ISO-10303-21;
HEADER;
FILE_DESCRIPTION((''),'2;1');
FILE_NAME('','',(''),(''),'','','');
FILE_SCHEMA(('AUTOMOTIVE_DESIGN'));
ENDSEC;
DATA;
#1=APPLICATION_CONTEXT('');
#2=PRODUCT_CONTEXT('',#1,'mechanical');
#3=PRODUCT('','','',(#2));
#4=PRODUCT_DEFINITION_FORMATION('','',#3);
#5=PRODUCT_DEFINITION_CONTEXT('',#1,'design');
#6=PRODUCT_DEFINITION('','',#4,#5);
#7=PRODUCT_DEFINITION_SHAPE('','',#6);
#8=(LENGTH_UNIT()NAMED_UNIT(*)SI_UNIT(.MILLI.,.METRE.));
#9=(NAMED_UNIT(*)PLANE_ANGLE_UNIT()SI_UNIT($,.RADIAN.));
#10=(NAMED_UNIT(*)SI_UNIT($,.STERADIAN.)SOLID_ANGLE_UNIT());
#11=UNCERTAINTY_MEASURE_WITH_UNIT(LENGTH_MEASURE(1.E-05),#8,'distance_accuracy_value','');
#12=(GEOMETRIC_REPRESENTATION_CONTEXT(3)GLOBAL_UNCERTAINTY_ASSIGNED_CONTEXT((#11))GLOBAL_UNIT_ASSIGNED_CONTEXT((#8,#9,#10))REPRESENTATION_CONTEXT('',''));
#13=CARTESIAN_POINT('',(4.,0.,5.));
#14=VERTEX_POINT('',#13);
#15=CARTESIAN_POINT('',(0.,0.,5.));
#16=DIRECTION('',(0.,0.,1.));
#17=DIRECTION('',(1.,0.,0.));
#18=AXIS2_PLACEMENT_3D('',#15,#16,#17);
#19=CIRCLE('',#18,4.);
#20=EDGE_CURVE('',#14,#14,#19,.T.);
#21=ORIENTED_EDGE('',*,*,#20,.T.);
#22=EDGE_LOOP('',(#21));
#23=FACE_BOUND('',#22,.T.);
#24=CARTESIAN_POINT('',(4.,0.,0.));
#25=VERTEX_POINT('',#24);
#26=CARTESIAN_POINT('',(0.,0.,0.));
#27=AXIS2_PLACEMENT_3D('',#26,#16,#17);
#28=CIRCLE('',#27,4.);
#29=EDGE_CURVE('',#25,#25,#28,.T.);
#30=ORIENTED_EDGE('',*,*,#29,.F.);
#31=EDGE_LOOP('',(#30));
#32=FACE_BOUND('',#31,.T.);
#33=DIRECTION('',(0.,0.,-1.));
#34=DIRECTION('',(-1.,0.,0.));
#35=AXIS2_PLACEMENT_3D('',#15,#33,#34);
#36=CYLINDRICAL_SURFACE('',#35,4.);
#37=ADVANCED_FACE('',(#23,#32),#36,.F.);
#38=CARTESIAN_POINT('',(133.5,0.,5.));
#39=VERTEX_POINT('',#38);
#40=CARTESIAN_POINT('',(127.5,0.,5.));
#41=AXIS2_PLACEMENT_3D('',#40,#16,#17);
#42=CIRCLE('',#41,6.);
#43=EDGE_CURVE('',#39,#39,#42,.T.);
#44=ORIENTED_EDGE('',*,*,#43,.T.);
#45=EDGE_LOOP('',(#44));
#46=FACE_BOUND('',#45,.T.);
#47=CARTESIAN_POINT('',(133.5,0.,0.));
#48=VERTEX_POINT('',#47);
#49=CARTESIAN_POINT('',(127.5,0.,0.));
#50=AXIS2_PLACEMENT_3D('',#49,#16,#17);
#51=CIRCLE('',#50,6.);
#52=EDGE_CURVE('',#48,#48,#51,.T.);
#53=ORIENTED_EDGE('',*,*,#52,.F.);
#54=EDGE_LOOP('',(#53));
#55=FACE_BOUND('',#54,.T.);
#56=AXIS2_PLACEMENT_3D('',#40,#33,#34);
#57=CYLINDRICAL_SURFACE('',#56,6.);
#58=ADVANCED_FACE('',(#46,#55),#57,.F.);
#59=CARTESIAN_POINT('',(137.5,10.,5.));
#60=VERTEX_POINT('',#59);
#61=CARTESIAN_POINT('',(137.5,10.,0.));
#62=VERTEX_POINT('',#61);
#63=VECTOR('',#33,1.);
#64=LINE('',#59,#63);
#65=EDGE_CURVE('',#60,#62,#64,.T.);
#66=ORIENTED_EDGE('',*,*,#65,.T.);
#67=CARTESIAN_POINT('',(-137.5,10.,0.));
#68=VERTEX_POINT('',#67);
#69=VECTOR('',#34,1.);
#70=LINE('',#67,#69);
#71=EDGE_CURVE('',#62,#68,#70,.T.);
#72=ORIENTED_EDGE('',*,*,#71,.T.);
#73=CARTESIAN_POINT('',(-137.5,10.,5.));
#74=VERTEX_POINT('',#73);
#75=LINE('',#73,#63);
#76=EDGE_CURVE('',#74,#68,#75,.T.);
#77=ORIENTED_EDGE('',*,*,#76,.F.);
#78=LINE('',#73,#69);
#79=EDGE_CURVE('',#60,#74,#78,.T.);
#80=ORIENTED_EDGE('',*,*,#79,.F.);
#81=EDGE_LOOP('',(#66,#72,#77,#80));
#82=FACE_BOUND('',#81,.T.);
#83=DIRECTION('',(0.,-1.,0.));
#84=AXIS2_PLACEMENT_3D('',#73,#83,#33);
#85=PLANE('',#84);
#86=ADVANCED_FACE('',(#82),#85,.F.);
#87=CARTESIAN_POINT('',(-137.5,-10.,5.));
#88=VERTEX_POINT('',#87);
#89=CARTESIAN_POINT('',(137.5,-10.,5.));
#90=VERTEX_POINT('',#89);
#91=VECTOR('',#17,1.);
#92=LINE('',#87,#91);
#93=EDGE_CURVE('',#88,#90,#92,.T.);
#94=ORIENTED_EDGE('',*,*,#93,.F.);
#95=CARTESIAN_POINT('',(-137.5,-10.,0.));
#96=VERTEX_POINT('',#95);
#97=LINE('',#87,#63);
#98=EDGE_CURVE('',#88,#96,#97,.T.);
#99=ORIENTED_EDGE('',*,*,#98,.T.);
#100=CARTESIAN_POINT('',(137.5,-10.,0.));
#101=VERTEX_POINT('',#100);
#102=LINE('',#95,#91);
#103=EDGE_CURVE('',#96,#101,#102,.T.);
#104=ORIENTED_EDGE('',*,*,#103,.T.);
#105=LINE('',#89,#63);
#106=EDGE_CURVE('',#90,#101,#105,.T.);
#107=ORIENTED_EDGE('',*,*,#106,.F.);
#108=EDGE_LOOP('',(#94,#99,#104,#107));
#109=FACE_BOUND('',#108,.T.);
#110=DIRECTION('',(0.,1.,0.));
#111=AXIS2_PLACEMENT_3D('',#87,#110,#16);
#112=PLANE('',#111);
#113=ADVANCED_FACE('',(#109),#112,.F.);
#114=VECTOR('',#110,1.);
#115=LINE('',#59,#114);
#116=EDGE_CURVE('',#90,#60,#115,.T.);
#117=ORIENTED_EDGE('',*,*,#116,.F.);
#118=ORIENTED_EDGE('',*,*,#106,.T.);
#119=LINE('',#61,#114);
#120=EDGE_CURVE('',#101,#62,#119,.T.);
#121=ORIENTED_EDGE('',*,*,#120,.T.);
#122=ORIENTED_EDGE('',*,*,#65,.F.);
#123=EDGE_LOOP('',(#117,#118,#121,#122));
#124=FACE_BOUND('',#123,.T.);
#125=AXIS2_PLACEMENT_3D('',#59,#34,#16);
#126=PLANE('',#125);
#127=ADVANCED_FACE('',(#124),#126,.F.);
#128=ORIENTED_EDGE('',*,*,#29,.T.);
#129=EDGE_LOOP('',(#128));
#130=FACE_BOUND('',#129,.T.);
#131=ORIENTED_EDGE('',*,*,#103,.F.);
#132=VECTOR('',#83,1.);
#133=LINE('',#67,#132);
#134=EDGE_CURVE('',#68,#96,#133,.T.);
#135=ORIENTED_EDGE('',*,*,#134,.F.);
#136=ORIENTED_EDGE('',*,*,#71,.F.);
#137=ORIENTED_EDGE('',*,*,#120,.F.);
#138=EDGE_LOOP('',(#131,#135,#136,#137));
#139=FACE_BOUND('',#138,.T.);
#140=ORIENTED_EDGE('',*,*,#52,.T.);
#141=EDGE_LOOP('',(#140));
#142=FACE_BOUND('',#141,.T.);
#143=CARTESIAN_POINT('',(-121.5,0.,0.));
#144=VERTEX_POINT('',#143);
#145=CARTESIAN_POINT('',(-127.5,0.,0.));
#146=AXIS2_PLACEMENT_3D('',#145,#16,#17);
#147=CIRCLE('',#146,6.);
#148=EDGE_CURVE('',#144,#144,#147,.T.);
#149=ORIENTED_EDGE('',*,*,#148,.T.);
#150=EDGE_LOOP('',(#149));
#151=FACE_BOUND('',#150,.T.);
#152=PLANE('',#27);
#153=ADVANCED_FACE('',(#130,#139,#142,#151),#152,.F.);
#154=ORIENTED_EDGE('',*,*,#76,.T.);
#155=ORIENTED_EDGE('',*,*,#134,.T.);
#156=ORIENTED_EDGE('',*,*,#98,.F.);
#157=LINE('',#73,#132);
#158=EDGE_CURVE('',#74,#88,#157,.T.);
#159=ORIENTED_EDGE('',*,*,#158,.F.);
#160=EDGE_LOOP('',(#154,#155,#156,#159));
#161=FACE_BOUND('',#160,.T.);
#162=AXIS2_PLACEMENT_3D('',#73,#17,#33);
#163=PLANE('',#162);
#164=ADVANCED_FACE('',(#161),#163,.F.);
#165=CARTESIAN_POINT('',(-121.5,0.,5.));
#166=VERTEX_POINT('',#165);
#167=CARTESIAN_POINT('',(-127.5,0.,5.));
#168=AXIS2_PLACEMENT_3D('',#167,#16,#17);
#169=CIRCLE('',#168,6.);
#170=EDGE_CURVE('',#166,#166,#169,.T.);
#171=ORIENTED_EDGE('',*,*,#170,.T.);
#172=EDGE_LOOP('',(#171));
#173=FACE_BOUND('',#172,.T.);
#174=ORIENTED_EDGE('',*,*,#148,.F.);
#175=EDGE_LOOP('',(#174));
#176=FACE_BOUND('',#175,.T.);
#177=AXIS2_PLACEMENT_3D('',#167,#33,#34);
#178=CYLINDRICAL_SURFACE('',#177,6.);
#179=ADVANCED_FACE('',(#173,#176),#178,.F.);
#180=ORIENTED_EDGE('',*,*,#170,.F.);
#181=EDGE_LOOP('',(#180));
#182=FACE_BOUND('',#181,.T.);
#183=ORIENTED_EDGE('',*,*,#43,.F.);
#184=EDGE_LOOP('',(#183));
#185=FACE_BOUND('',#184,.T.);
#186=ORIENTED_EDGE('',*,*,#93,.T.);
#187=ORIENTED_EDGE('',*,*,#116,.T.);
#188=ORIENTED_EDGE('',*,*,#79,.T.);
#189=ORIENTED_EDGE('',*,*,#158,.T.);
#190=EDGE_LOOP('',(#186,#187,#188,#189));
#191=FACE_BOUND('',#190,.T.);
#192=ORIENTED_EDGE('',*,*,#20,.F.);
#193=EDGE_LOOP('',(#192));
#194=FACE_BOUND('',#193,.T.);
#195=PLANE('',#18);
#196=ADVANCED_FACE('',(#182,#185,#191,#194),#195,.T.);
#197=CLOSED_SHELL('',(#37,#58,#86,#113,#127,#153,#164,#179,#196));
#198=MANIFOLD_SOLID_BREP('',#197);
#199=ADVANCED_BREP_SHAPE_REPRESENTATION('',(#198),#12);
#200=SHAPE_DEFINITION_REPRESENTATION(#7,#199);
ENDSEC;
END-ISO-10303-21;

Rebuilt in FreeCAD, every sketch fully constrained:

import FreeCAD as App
import Part
import Sketcher

V = App.Vector
Q = App.Units.Quantity

doc = App.newDocument("Part")
body = doc.addObject("PartDesign::Body", "Body")

# Sketch on XY plane
sketch1 = body.newObject("Sketcher::SketchObject", "Sketch")
sketch1.AttachmentSupport = (doc.getObject("XY_Plane"), [""])
sketch1.MapMode = "FlatFace"
sketch1.addGeometry(Part.LineSegment(V(-137.5, 10, 0), V(-137.5, -10, 0)), False)
sketch1.addGeometry(Part.LineSegment(V(-137.5, -10, 0), V(137.5, -10, 0)), False)
sketch1.addGeometry(Part.LineSegment(V(137.5, -10, 0), V(137.5, 10, 0)), False)
sketch1.addGeometry(Part.LineSegment(V(137.5, 10, 0), V(-137.5, 10, 0)), False)
sketch1.addGeometry(Part.Circle(V(-127.5, 0, 0), V(0, 0, 1), 6), False)
sketch1.addGeometry(Part.Circle(V(0, 0, 0), V(0, 0, 1), 4), False)
sketch1.addGeometry(Part.Circle(V(127.5, 0, 0), V(0, 0, 1), 6), False)
sketch1.addConstraint(Sketcher.Constraint("Coincident", 0, 2, 1, 1))
sketch1.addConstraint(Sketcher.Constraint("Coincident", 1, 2, 2, 1))
sketch1.addConstraint(Sketcher.Constraint("Coincident", 2, 2, 3, 1))
sketch1.addConstraint(Sketcher.Constraint("Coincident", 3, 2, 0, 1))
sketch1.addConstraint(Sketcher.Constraint("Vertical", 0))
sketch1.addConstraint(Sketcher.Constraint("Horizontal", 1))
sketch1.addConstraint(Sketcher.Constraint("Vertical", 2))
sketch1.addConstraint(Sketcher.Constraint("Horizontal", 3))
sketch1.addConstraint(Sketcher.Constraint("Coincident", 5, 3, -1, 1))
sketch1.addConstraint(Sketcher.Constraint("Equal", 4, 6))
sketch1.addConstraint(Sketcher.Constraint("Symmetric", 4, 3, 6, 3, -1, 1))
sketch1.addConstraint(Sketcher.Constraint("Symmetric", 0, 2, 2, 2, -1, 1))
sketch1.addConstraint(Sketcher.Constraint("PointOnObject", 4, 3, -1))
sketch1.addConstraint(Sketcher.Constraint("Diameter", 4, Q("12 mm")))
sketch1.addConstraint(Sketcher.Constraint("Diameter", 5, Q("8 mm")))
sketch1.addConstraint(Sketcher.Constraint("DistanceX", 1, 1, 1, 2, Q("275 mm")))
sketch1.addConstraint(Sketcher.Constraint("DistanceY", 0, 2, 0, 1, Q("20 mm")))
sketch1.addConstraint(Sketcher.Constraint("DistanceX", 4, 3, 6, 3, Q("255 mm")))
pad1 = body.newObject("PartDesign::Pad", "Pad")
pad1.Profile = sketch1
pad1.Length = 5

doc.recompute()
